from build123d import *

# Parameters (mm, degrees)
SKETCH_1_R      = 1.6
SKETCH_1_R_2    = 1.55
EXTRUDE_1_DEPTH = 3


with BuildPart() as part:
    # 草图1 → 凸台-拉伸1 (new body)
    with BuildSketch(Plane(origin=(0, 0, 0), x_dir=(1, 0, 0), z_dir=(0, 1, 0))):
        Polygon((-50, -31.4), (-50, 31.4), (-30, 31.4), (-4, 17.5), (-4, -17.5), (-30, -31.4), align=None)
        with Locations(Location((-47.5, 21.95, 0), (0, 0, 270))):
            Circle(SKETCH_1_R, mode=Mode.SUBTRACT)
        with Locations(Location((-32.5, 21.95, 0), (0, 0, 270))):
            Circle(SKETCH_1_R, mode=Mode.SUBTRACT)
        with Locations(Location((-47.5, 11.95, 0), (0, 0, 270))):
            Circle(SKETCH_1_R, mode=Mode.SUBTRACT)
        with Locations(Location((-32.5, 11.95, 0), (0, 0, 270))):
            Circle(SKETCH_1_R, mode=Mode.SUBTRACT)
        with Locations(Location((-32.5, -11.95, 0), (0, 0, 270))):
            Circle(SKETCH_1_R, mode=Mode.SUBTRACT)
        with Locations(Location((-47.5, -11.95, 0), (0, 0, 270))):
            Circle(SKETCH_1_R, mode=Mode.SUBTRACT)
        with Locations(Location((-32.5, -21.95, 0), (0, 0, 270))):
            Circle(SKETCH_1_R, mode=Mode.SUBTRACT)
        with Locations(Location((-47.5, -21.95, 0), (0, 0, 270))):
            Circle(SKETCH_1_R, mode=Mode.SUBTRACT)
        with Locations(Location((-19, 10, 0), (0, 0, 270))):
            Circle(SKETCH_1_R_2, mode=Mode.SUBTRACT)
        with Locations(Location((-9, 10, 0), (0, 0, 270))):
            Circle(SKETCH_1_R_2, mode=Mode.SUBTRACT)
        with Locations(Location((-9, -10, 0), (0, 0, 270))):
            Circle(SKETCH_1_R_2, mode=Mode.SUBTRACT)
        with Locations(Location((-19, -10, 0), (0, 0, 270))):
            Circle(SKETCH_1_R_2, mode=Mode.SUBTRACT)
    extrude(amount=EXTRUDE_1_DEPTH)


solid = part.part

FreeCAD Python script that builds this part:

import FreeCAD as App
import Part
import Sketcher
from FreeCAD import Vector

doc = App.newDocument("Part")
body = doc.addObject("PartDesign::Body", "Body")

sketch1 = body.newObject("Sketcher::SketchObject", "Sketch")
sketch1.AttachmentSupport = (doc.getObject("XZ_Plane"), [""])
sketch1.MapMode = "FlatFace"
sketch1.addGeometry([
    Part.LineSegment(Vector(-50, -31.4, 0), Vector(-50, 31.4, 0)),
    Part.LineSegment(Vector(-50, 31.4, 0), Vector(-30, 31.4, 0)),
    Part.LineSegment(Vector(-30, 31.4, 0), Vector(-4, 17.5, 0)),
    Part.LineSegment(Vector(-4, 17.5, 0), Vector(-4, -17.5, 0)),
    Part.LineSegment(Vector(-4, -17.5, 0), Vector(-30, -31.4, 0)),
    Part.LineSegment(Vector(-30, -31.4, 0), Vector(-50, -31.4, 0)),
    Part.Circle(Vector(-9, 10, 0), Vector(0, 0, 1), 1.55),
    Part.Circle(Vector(-19, 10, 0), Vector(0, 0, 1), 1.55),
    Part.Circle(Vector(-32.5, 21.95, 0), Vector(0, 0, 1), 1.6),
    Part.Circle(Vector(-32.5, 11.95, 0), Vector(0, 0, 1), 1.6),
    Part.Circle(Vector(-47.5, 21.95, 0), Vector(0, 0, 1), 1.6),
    Part.Circle(Vector(-47.5, 11.95, 0), Vector(0, 0, 1), 1.6),
    Part.Circle(Vector(-9, -10, 0), Vector(0, 0, 1), 1.55),
    Part.Circle(Vector(-19, -10, 0), Vector(0, 0, 1), 1.55),
    Part.Circle(Vector(-32.5, -11.95, 0), Vector(0, 0, 1), 1.6),
    Part.Circle(Vector(-32.5, -21.95, 0), Vector(0, 0, 1), 1.6),
    Part.Circle(Vector(-47.5, -11.95, 0), Vector(0, 0, 1), 1.6),
    Part.Circle(Vector(-47.5, -21.95, 0), Vector(0, 0, 1), 1.6),
], False)
sketch1.addConstraint([
    Sketcher.Constraint("Coincident", 0, 2, 1, 1),
    Sketcher.Constraint("Coincident", 1, 2, 2, 1),
    Sketcher.Constraint("Coincident", 2, 2, 3, 1),
    Sketcher.Constraint("Coincident", 3, 2, 4, 1),
    Sketcher.Constraint("Coincident", 4, 2, 5, 1),
    Sketcher.Constraint("Coincident", 5, 2, 0, 1),
    Sketcher.Constraint("Vertical", 0),
    Sketcher.Constraint("Horizontal", 1),
    Sketcher.Constraint("Vertical", 3),
    Sketcher.Constraint("Horizontal", 5),
    Sketcher.Constraint("Equal", 6, 7),
    Sketcher.Constraint("Equal", 8, 9),
    Sketcher.Constraint("Equal", 9, 10),
    Sketcher.Constraint("Equal", 10, 11),
    Sketcher.Constraint("Equal", 7, 12),
    Sketcher.Constraint("Equal", 12, 13),
    Sketcher.Constraint("Equal", 11, 14),
    Sketcher.Constraint("Equal", 14, 15),
    Sketcher.Constraint("Equal", 15, 16),
    Sketcher.Constraint("Equal", 16, 17),
    Sketcher.Constraint("Symmetric", 6, 3, 12, 3, -1),
    Sketcher.Constraint("Symmetric", 7, 3, 13, 3, -1),
    Sketcher.Constraint("Symmetric", 9, 3, 14, 3, -1),
    Sketcher.Constraint("Symmetric", 8, 3, 15, 3, -1),
    Sketcher.Constraint("Symmetric", 11, 3, 16, 3, -1),
    Sketcher.Constraint("Symmetric", 10, 3, 17, 3, -1),
    Sketcher.Constraint("Symmetric", 1, 2, 4, 2, -1),
    Sketcher.Constraint("Horizontal", 6, 3, 7, 3),
    Sketcher.Constraint("Horizontal", 8, 3, 10, 3),
    Sketcher.Constraint("Horizontal", 9, 3, 11, 3),
    Sketcher.Constraint("Vertical", 8, 3, 9, 3),
    Sketcher.Constraint("Vertical", 10, 3, 11, 3),
    Sketcher.Constraint("Equal", 2, 4),
    Sketcher.Constraint("Diameter", 6, 3.1),
    Sketcher.Constraint("Diameter", 8, 3.2),
    Sketcher.Constraint("DistanceX", 1, 1, 1, 2, 20.0),
    Sketcher.Constraint("DistanceY", 3, 2, 3, 1, 35.0),
    Sketcher.Constraint("DistanceY", 0, 1, 0, 2, 62.8),
    Sketcher.Constraint("DistanceX", 6, 3, -1, 1, 9.0),
    Sketcher.Constraint("DistanceY", -1, 1, 6, 3, 10.0),
    Sketcher.Constraint("DistanceX", 7, 3, -1, 1, 19.0),
    Sketcher.Constraint("DistanceX", 0, 2, -1, 1, 50.0),
    Sketcher.Constraint("DistanceX", 2, 2, -1, 1, 4.0),
    Sketcher.Constraint("DistanceY", 9, 3, 8, 3, 10.0),
    Sketcher.Constraint("DistanceX", 10, 3, 8, 3, 15.0),
    Sketcher.Constraint("DistanceX", 8, 3, -1, 1, 32.5),
    Sketcher.Constraint("DistanceY", 14, 3, 9, 3, 23.9),
])
pad1 = body.newObject("PartDesign::Pad", "Pad")
pad1.Profile = sketch1
pad1.Length = 3
pad1.Reversed = True

doc.recompute()
